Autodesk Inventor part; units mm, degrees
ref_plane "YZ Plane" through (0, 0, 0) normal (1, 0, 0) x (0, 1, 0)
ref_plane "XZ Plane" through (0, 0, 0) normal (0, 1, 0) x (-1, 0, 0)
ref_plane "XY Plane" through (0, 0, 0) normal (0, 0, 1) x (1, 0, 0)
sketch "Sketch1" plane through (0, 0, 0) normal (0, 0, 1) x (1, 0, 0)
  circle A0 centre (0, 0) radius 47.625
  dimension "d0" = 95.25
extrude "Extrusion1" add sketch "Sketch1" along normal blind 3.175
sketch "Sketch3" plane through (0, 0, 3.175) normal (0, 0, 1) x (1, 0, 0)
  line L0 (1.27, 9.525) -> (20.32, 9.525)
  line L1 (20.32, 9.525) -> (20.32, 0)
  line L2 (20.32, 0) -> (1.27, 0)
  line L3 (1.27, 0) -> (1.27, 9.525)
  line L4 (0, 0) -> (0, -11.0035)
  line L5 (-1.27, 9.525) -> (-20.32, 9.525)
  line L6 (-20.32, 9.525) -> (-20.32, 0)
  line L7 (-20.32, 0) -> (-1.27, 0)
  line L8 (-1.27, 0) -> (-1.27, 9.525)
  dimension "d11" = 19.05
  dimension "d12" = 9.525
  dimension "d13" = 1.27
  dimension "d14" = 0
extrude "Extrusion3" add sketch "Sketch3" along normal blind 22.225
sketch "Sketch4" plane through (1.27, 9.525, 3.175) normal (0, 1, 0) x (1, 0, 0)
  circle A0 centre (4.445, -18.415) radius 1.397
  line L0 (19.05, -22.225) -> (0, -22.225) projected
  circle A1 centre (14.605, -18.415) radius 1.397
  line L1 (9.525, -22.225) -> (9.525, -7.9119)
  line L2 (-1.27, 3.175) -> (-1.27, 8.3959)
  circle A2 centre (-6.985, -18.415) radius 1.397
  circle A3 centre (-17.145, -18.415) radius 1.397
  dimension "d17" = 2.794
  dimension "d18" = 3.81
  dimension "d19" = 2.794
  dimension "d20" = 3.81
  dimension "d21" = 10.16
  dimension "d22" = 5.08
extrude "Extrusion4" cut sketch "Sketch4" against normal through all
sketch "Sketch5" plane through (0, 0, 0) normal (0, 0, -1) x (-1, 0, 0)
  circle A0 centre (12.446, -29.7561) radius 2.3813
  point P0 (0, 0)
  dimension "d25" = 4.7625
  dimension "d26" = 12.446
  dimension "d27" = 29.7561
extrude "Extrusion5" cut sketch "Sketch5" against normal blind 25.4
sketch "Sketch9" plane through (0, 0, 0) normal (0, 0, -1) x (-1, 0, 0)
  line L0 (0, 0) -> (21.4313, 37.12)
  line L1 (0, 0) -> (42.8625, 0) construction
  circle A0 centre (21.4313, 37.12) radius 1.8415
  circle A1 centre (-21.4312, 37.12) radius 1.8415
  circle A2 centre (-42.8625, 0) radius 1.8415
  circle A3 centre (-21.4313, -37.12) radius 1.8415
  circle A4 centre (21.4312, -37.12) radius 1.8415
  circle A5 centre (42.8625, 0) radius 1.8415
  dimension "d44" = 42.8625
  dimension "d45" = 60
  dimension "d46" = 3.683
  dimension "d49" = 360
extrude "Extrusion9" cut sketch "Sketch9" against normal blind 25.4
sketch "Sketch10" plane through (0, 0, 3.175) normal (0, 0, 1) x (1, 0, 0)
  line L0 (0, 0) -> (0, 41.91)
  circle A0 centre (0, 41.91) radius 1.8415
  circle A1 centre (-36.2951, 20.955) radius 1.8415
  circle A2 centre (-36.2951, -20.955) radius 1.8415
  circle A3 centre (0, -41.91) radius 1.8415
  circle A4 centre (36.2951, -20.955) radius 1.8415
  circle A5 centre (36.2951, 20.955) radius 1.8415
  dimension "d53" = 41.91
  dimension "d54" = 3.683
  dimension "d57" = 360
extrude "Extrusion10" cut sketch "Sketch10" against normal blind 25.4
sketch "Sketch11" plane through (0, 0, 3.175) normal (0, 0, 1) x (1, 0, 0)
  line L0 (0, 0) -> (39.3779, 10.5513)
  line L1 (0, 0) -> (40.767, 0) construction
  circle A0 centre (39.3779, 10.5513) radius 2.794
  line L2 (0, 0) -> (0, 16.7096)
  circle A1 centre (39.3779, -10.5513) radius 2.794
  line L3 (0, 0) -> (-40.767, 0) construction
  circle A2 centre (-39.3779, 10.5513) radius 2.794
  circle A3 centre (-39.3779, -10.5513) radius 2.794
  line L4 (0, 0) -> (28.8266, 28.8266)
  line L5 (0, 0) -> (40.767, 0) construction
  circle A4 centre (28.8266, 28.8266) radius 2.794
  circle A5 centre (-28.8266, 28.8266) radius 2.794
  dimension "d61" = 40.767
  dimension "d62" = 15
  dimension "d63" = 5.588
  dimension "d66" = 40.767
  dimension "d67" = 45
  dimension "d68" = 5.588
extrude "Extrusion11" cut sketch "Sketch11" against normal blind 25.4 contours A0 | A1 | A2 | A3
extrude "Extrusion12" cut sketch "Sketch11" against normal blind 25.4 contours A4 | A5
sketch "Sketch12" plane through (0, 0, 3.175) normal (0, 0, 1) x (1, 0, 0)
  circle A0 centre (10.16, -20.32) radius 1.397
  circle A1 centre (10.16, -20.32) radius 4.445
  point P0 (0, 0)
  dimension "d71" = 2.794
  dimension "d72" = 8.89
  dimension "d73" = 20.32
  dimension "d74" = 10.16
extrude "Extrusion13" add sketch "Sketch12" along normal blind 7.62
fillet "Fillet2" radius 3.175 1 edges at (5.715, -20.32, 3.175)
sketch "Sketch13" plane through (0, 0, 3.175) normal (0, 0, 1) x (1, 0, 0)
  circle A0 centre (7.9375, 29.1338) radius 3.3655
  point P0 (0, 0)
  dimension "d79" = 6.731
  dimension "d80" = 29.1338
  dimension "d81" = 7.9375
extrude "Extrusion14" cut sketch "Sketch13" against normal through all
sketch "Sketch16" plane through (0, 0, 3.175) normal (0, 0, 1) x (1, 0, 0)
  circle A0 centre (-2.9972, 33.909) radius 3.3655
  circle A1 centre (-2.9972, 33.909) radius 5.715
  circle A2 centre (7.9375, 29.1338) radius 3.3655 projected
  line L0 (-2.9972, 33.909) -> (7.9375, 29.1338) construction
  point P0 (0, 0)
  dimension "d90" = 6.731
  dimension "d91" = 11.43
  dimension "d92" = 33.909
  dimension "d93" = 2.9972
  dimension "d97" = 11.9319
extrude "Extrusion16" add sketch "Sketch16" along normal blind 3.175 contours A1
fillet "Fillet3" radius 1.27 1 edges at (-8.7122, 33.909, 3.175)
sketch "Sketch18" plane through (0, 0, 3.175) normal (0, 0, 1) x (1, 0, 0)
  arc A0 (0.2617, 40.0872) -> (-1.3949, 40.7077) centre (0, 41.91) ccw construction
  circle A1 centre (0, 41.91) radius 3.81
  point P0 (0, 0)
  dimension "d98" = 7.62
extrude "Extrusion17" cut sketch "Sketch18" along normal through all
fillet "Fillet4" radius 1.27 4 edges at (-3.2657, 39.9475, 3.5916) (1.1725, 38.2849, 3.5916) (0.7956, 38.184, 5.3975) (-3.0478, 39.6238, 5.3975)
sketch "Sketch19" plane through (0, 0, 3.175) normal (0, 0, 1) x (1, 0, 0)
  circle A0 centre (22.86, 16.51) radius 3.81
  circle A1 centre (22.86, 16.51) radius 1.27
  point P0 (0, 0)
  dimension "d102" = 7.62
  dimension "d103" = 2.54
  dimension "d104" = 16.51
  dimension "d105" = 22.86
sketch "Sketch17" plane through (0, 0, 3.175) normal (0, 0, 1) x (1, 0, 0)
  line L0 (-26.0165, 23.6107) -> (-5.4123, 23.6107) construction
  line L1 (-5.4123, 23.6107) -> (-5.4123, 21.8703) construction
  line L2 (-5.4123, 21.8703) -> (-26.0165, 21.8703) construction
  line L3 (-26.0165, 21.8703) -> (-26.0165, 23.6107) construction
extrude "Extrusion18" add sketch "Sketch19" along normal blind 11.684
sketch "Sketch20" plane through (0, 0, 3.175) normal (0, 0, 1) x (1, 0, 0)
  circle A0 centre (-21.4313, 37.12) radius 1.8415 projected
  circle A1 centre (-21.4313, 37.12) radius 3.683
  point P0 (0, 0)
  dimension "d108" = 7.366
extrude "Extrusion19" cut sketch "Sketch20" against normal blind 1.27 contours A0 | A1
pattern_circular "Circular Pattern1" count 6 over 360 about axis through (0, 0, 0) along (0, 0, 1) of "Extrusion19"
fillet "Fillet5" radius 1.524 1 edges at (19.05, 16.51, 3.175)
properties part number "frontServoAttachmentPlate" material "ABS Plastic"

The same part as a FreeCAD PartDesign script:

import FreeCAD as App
import Part
import Sketcher
from FreeCAD import Vector
Q = App.Units.Quantity


def edges_at(feature, points):
    """Names of the edges that pass closest to the given points."""
    edges = feature.Shape.Edges
    near = lambda p: min(range(len(edges)), key=lambda i: edges[i].distToShape(Part.Vertex(*p))[0])
    return sorted({f"Edge{near(p) + 1}" for p in points})


def add_polygon(sketch, points):
    """Adds a closed chain of lines whose ends are joined by coincident constraints."""
    first, n = sketch.GeometryCount, len(points)
    for a, b in zip(points, points[1:] + points[:1]):
        sketch.addGeometry(Part.LineSegment(App.Vector(*a, 0), App.Vector(*b, 0)), False)
    for i in range(n):
        sketch.addConstraint(Sketcher.Constraint("Coincident", first + i, 2, first + (i + 1) % n, 1))

doc = App.newDocument("Part")
params = doc.addObject("Spreadsheet::Sheet", "Params")
for row, (alias, value) in enumerate([
    ("sketch1_diameter", "3.75 in"),
    ("pad1_length", "0.125 in"),
    ("sketch2_width", "0.75 in"),
    ("sketch2_height", "0.375 in"),
    ("pad2_length", "0.875 in"),
    ("sketch3_diameter", "0.11 in"),
    ("sketch4_diameter", "0.1875 in"),
    ("pocket2_length", "1 in"),
    ("sketch5_diameter", "0.145 in"),
    ("pocket3_length", "1 in"),
    ("sketch6_diameter", "0.145 in"),
    ("pocket4_length", "1 in"),
    ("sketch7_diameter", "0.22 in"),
    ("pocket5_length", "1 in"),
    ("sketch8_diameter", "0.22 in"),
    ("pocket6_length", "1 in"),
    ("sketch9_diameter", "0.35 in"),
    ("sketch9_diameter2", "0.11 in"),
    ("pad3_length", "0.3 in"),
    ("fillet_radius", "0.125 in"),
    ("sketch10_diameter", "0.265 in"),
    ("sketch11_diameter", "0.45 in"),
    ("sketch11_diameter2", "0.265 in"),
    ("pad4_length", "0.125 in"),
    ("fillet2_radius", "0.05 in"),
    ("sketch12_diameter", "0.3 in"),
    ("fillet3_radius", "0.05 in"),
    ("sketch13_diameter", "0.3 in"),
    ("sketch13_diameter2", "0.1 in"),
    ("pad5_length", "0.46 in"),
    ("sketch14_diameter", "0.29 in"),
    ("pocket9_length", "0.05 in"),
    ("fillet4_radius", "0.06 in"),
], start=1):
    params.set(f"A{row}", alias)
    params.set(f"B{row}", "=" + value)
    params.setAlias(f"B{row}", alias)

body = doc.addObject("PartDesign::Body", "Body")

sketch1 = doc.addObject("Sketcher::SketchObject", "Sketch")
body.addObject(sketch1)
sketch1.AttachmentSupport = (doc.XY_Plane, [""])
sketch1.MapMode = "FlatFace"
sketch1.addGeometry(Part.Circle(Vector(0, 0, 0), Vector(0, 0, 1), 48), False)
sketch1.addConstraint(Sketcher.Constraint("Coincident", 0, 3, -1, 1))
sketch1.addConstraint(Sketcher.Constraint("Diameter", 0, Q("3.75 in")))
sketch1.setExpression("Constraints[1]", "Params.sketch1_diameter")
pad1 = doc.addObject("PartDesign::Pad", "Pad")
body.addObject(pad1)
pad1.Profile = sketch1
pad1.setExpression("Length", "Params.pad1_length")

sketch2 = doc.addObject("Sketcher::SketchObject", "Sketch001")
body.addObject(sketch2)
sketch2.AttachmentSupport = (doc.XY_Plane, [""])
sketch2.MapMode = "FlatFace"
sketch2.AttachmentOffset = App.Placement(Vector(0, 0, 0.125 * 25.4), App.Rotation())
add_polygon(sketch2, [(20, 10), (1, 10), (1, 0), (20, 0)])
add_polygon(sketch2, [(-1, 0), (-1, 10), (-20, 10), (-20, 0)])
sketch2.addConstraint(Sketcher.Constraint("Horizontal", 0))
sketch2.addConstraint(Sketcher.Constraint("Vertical", 1))
sketch2.addConstraint(Sketcher.Constraint("Horizontal", 2))
sketch2.addConstraint(Sketcher.Constraint("Vertical", 3))
sketch2.addConstraint(Sketcher.Constraint("Vertical", 4))
sketch2.addConstraint(Sketcher.Constraint("Horizontal", 5))
sketch2.addConstraint(Sketcher.Constraint("Vertical", 6))
sketch2.addConstraint(Sketcher.Constraint("Horizontal", 7))
sketch2.addConstraint(Sketcher.Constraint("Symmetric", 2, 2, 6, 2, -1, 1))
sketch2.addConstraint(Sketcher.Constraint("Symmetric", 0, 2, 4, 2, -2))
sketch2.addConstraint(Sketcher.Constraint("PointOnObject", 1, 2, -1))
sketch2.addConstraint(Sketcher.Constraint("DistanceX", 0, 2, 0, 1, Q("0.75 in")))
sketch2.addConstraint(Sketcher.Constraint("DistanceY", 1, 2, 1, 1, Q("0.375 in")))
sketch2.addConstraint(Sketcher.Constraint("DistanceX", -1, 1, 0, 2, Q("0.05 in")))
sketch2.setExpression("Constraints[19]", "Params.sketch2_width")
sketch2.setExpression("Constraints[20]", "Params.sketch2_height")
pad2 = doc.addObject("PartDesign::Pad", "Pad001")
body.addObject(pad2)
pad2.Profile = sketch2
pad2.setExpression("Length", "Params.pad2_length")

sketch3 = doc.addObject("Sketcher::SketchObject", "Sketch002")
body.addObject(sketch3)
sketch3.AttachmentSupport = (doc.XZ_Plane, [""])
sketch3.MapMode = "FlatFace"
sketch3.AttachmentOffset = App.Placement(Vector(0, 0, -0.375 * 25.4), App.Rotation())
sketch3.addGeometry(Part.Circle(Vector(5.7, 21.6, 0), Vector(0, 0, 1), 1.4), False)
sketch3.addGeometry(Part.Circle(Vector(15.9, 21.6, 0), Vector(0, 0, 1), 1.4), False)
sketch3.addGeometry(Part.Circle(Vector(-5.7, 21.6, 0), Vector(0, 0, 1), 1.4), False)
sketch3.addGeometry(Part.Circle(Vector(-15.9, 21.6, 0), Vector(0, 0, 1), 1.4), False)
sketch3.addConstraint(Sketcher.Constraint("Equal", 0, 1))
sketch3.addConstraint(Sketcher.Constraint("Equal", 1, 2))
sketch3.addConstraint(Sketcher.Constraint("Equal", 2, 3))
sketch3.addConstraint(Sketcher.Constraint("Symmetric", 0, 3, 2, 3, -2))
sketch3.addConstraint(Sketcher.Constraint("Symmetric", 1, 3, 3, 3, -2))
sketch3.addConstraint(Sketcher.Constraint("Horizontal", 0, 3, 1, 3))
sketch3.addConstraint(Sketcher.Constraint("Diameter", 0, Q("0.11 in")))
sketch3.addConstraint(Sketcher.Constraint("DistanceX", 0, 3, 1, 3, Q("0.4 in")))
sketch3.addConstraint(Sketcher.Constraint("DistanceY", -1, 1, 0, 3, Q("0.85 in")))
sketch3.addConstraint(Sketcher.Constraint("DistanceX", 2, 3, 0, 3, Q("0.45 in")))
sketch3.setExpression("Constraints[6]", "Params.sketch3_diameter")
pocket1 = doc.addObject("PartDesign::Pocket", "Pocket")
body.addObject(pocket1)
pocket1.Profile = sketch3
pocket1.Type = "ThroughAll"
pocket1.Reversed = True

sketch4 = doc.addObject("Sketcher::SketchObject", "Sketch003")
body.addObject(sketch4)
sketch4.AttachmentSupport = (doc.XY_Plane, [""])
sketch4.MapMode = "FlatFace"
sketch4.addGeometry(Part.Circle(Vector(-12.4, -29.8, 0), Vector(0, 0, 1), 2.4), False)
sketch4.addConstraint(Sketcher.Constraint("Diameter", 0, Q("0.1875 in")))
sketch4.addConstraint(Sketcher.Constraint("DistanceX", 0, 3, -1, 1, Q("0.49 in")))
sketch4.addConstraint(Sketcher.Constraint("DistanceY", 0, 3, -1, 1, Q("1.1715 in")))
sketch4.setExpression("Constraints[0]", "Params.sketch4_diameter")
pocket2 = doc.addObject("PartDesign::Pocket", "Pocket001")
body.addObject(pocket2)
pocket2.Profile = sketch4
pocket2.setExpression("Length", "Params.pocket2_length")
pocket2.Reversed = True

sketch5 = doc.addObject("Sketcher::SketchObject", "Sketch004")
body.addObject(sketch5)
sketch5.AttachmentSupport = (doc.XY_Plane, [""])
sketch5.MapMode = "FlatFace"
sketch5.addGeometry(Part.Circle(Vector(-21.4, 37.1, 0), Vector(0, 0, 1), 1.8), False)
sketch5.addGeometry(Part.Circle(Vector(21.4, 37.1, 0), Vector(0, 0, 1), 1.8), False)
sketch5.addGeometry(Part.Circle(Vector(42.9, 0, 0), Vector(0, 0, 1), 1.8), False)
sketch5.addGeometry(Part.Circle(Vector(21.4, -37.1, 0), Vector(0, 0, 1), 1.8), False)
sketch5.addGeometry(Part.Circle(Vector(-21.4, -37.1, 0), Vector(0, 0, 1), 1.8), False)
sketch5.addGeometry(Part.Circle(Vector(-42.9, 0, 0), Vector(0, 0, 1), 1.8), False)
sketch5.addConstraint(Sketcher.Constraint("Equal", 0, 1))
sketch5.addConstraint(Sketcher.Constraint("Equal", 1, 2))
sketch5.addConstraint(Sketcher.Constraint("Equal", 2, 3))
sketch5.addConstraint(Sketcher.Constraint("Equal", 3, 4))
sketch5.addConstraint(Sketcher.Constraint("Equal", 4, 5))
sketch5.addConstraint(Sketcher.Constraint("Symmetric", 0, 3, 3, 3, -1, 1))
sketch5.addConstraint(Sketcher.Constraint("Symmetric", 1, 3, 4, 3, -1, 1))
sketch5.addConstraint(Sketcher.Constraint("Symmetric", 2, 3, 5, 3, -1, 1))
sketch5.addConstraint(Sketcher.Constraint("Symmetric", 0, 3, 1, 3, -2))
sketch5.addConstraint(Sketcher.Constraint("PointOnObject", 2, 3, -1))
sketch5.addConstraint(Sketcher.Constraint("Diameter", 0, Q("0.145 in")))
sketch5.addConstraint(Sketcher.Constraint("DistanceX", -1, 1, 2, 3, Q("1.6875 in")))
sketch5.addConstraint(Sketcher.Constraint("DistanceX", 0, 3, 1, 3, Q("1.6875 in")))
sketch5.addConstraint(Sketcher.Constraint("DistanceY", -1, 1, 0, 3, 37.12))
sketch5.setExpression("Constraints[10]", "Params.sketch5_diameter")
pocket3 = doc.addObject("PartDesign::Pocket", "Pocket002")
body.addObject(pocket3)
pocket3.Profile = sketch5
pocket3.setExpression("Length", "Params.pocket3_length")
pocket3.Reversed = True

sketch6 = doc.addObject("Sketcher::SketchObject", "Sketch005")
body.addObject(sketch6)
sketch6.AttachmentSupport = (doc.XY_Plane, [""])
sketch6.MapMode = "FlatFace"
sketch6.AttachmentOffset = App.Placement(Vector(0, 0, 0.125 * 25.4), App.Rotation())
sketch6.addGeometry(Part.Circle(Vector(0, 41.9, 0), Vector(0, 0, 1), 1.8), False)
sketch6.addGeometry(Part.Circle(Vector(-36.3, 21, 0), Vector(0, 0, 1), 1.8), False)
sketch6.addGeometry(Part.Circle(Vector(-36.3, -21, 0), Vector(0, 0, 1), 1.8), False)
sketch6.addGeometry(Part.Circle(Vector(0, -41.9, 0), Vector(0, 0, 1), 1.8), False)
sketch6.addGeometry(Part.Circle(Vector(36.3, -21, 0), Vector(0, 0, 1), 1.8), False)
sketch6.addGeometry(Part.Circle(Vector(36.3, 21, 0), Vector(0, 0, 1), 1.8), False)
sketch6.addConstraint(Sketcher.Constraint("Equal", 0, 1))
sketch6.addConstraint(Sketcher.Constraint("Equal", 1, 2))
sketch6.addConstraint(Sketcher.Constraint("Equal", 2, 3))
sketch6.addConstraint(Sketcher.Constraint("Equal", 3, 4))
sketch6.addConstraint(Sketcher.Constraint("Equal", 4, 5))
sketch6.addConstraint(Sketcher.Constraint("Symmetric", 0, 3, 3, 3, -1, 1))
sketch6.addConstraint(Sketcher.Constraint("Symmetric", 1, 3, 4, 3, -1, 1))
sketch6.addConstraint(Sketcher.Constraint("Symmetric", 2, 3, 5, 3, -1, 1))
sketch6.addConstraint(Sketcher.Constraint("Symmetric", 2, 3, 4, 3, -2))
sketch6.addConstraint(Sketcher.Constraint("PointOnObject", 0, 3, -2))
sketch6.addConstraint(Sketcher.Constraint("Diameter", 0, Q("0.145 in")))
sketch6.addConstraint(Sketcher.Constraint("DistanceY", -1, 1, 0, 3, Q("1.65 in")))
sketch6.addConstraint(Sketcher.Constraint("DistanceY", 2, 3, 1, 3, Q("1.65 in")))
sketch6.addConstraint(Sketcher.Constraint("DistanceX", 1, 3, -1, 1, 36.295))
sketch6.setExpression("Constraints[10]", "Params.sketch6_diameter")
pocket4 = doc.addObject("PartDesign::Pocket", "Pocket003")
body.addObject(pocket4)
pocket4.Profile = sketch6
pocket4.setExpression("Length", "Params.pocket4_length")

sketch7 = doc.addObject("Sketcher::SketchObject", "Sketch006")
body.addObject(sketch7)
sketch7.AttachmentSupport = (doc.XY_Plane, [""])
sketch7.MapMode = "FlatFace"
sketch7.AttachmentOffset = App.Placement(Vector(0, 0, 0.125 * 25.4), App.Rotation())
sketch7.addGeometry(Part.Circle(Vector(39.4, 10.6, 0), Vector(0, 0, 1), 2.8), False)
sketch7.addGeometry(Part.Circle(Vector(39.4, -10.6, 0), Vector(0, 0, 1), 2.8), False)
sketch7.addGeometry(Part.Circle(Vector(-39.4, 10.6, 0), Vector(0, 0, 1), 2.8), False)
sketch7.addGeometry(Part.Circle(Vector(-39.4, -10.6, 0), Vector(0, 0, 1), 2.8), False)
sketch7.addConstraint(Sketcher.Constraint("Equal", 0, 1))
sketch7.addConstraint(Sketcher.Constraint("Equal", 1, 2))
sketch7.addConstraint(Sketcher.Constraint("Equal", 2, 3))
sketch7.addConstraint(Sketcher.Constraint("Symmetric", 1, 3, 2, 3, -1, 1))
sketch7.addConstraint(Sketcher.Constraint("Symmetric", 0, 3, 3, 3, -1, 1))
sketch7.addConstraint(Sketcher.Constraint("Symmetric", 0, 3, 2, 3, -2))
sketch7.addConstraint(Sketcher.Constraint("Diameter", 0, Q("0.22 in")))
sketch7.addConstraint(Sketcher.Constraint("DistanceX", -1, 1, 0, 3, Q("1.5503 in")))
sketch7.addConstraint(Sketcher.Constraint("DistanceY", -1, 1, 0, 3, Q("0.4154 in")))
sketch7.setExpression("Constraints[6]", "Params.sketch7_diameter")
pocket5 = doc.addObject("PartDesign::Pocket", "Pocket004")
body.addObject(pocket5)
pocket5.Profile = sketch7
pocket5.setExpression("Length", "Params.pocket5_length")

sketch8 = doc.addObject("Sketcher::SketchObject", "Sketch007")
body.addObject(sketch8)
sketch8.AttachmentSupport = (doc.XY_Plane, [""])
sketch8.MapMode = "FlatFace"
sketch8.AttachmentOffset = App.Placement(Vector(0, 0, 0.125 * 25.4), App.Rotation())
sketch8.addGeometry(Part.Circle(Vector(28.8, 28.8, 0), Vector(0, 0, 1), 2.8), False)
sketch8.addGeometry(Part.Circle(Vector(-28.8, 28.8, 0), Vector(0, 0, 1), 2.8), False)
sketch8.addConstraint(Sketcher.Constraint("Equal", 0, 1))
sketch8.addConstraint(Sketcher.Constraint("Symmetric", 0, 3, 1, 3, -2))
sketch8.addConstraint(Sketcher.Constraint("Diameter", 0, Q("0.22 in")))
sketch8.addConstraint(Sketcher.Constraint("DistanceX", -1, 1, 0, 3, Q("1.1349 in")))
sketch8.addConstraint(Sketcher.Constraint("DistanceY", -1, 1, 0, 3, Q("1.1349 in")))
sketch8.setExpression("Constraints[2]", "Params.sketch8_diameter")
pocket6 = doc.addObject("PartDesign::Pocket", "Pocket005")
body.addObject(pocket6)
pocket6.Profile = sketch8
pocket6.setExpression("Length", "Params.pocket6_length")

sketch9 = doc.addObject("Sketcher::SketchObject", "Sketch008")
body.addObject(sketch9)
sketch9.AttachmentSupport = (doc.XY_Plane, [""])
sketch9.MapMode = "FlatFace"
sketch9.AttachmentOffset = App.Placement(Vector(0, 0, 0.125 * 25.4), App.Rotation())
sketch9.addGeometry(Part.Circle(Vector(10.2, -20.3, 0), Vector(0, 0, 1), 4.4), False)
sketch9.addGeometry(Part.Circle(Vector(10.2, -20.3, 0), Vector(0, 0, 1), 1.4), False)
sketch9.addConstraint(Sketcher.Constraint("Coincident", 1, 3, 0, 3))
sketch9.addConstraint(Sketcher.Constraint("Diameter", 0, Q("0.35 in")))
sketch9.addConstraint(Sketcher.Constraint("Diameter", 1, Q("0.11 in")))
sketch9.addConstraint(Sketcher.Constraint("DistanceX", -1, 1, 0, 3, Q("0.4 in")))
sketch9.addConstraint(Sketcher.Constraint("DistanceY", 0, 3, -1, 1, Q("0.8 in")))
sketch9.setExpression("Constraints[1]", "Params.sketch9_diameter")
sketch9.setExpression("Constraints[2]", "Params.sketch9_diameter2")
pad3 = doc.addObject("PartDesign::Pad", "Pad002")
body.addObject(pad3)
pad3.Profile = sketch9
pad3.setExpression("Length", "Params.pad3_length")
doc.recompute()

fillet = doc.addObject("PartDesign::Fillet", "Fillet")
body.addObject(fillet)
fillet.Base = (pad3, edges_at(pad3, [(5.715, -20.32, 3.175)]))
fillet.setExpression("Radius", "Params.fillet_radius")

sketch10 = doc.addObject("Sketcher::SketchObject", "Sketch009")
body.addObject(sketch10)
sketch10.AttachmentSupport = (doc.XY_Plane, [""])
sketch10.MapMode = "FlatFace"
sketch10.AttachmentOffset = App.Placement(Vector(0, 0, 0.125 * 25.4), App.Rotation())
sketch10.addGeometry(Part.Circle(Vector(7.9, 29.1, 0), Vector(0, 0, 1), 3.4), False)
sketch10.addConstraint(Sketcher.Constraint("Diameter", 0, Q("0.265 in")))
sketch10.addConstraint(Sketcher.Constraint("DistanceX", -1, 1, 0, 3, Q("0.3125 in")))
sketch10.addConstraint(Sketcher.Constraint("DistanceY", -1, 1, 0, 3, Q("1.147 in")))
sketch10.setExpression("Constraints[0]", "Params.sketch10_diameter")
pocket7 = doc.addObject("PartDesign::Pocket", "Pocket006")
body.addObject(pocket7)
pocket7.Profile = sketch10
pocket7.Type = "ThroughAll"

sketch11 = doc.addObject("Sketcher::SketchObject", "Sketch010")
body.addObject(sketch11)
sketch11.AttachmentSupport = (doc.XY_Plane, [""])
sketch11.MapMode = "FlatFace"
sketch11.AttachmentOffset = App.Placement(Vector(0, 0, 0.125 * 25.4), App.Rotation())
sketch11.addGeometry(Part.Circle(Vector(-3, 33.9, 0), Vector(0, 0, 1), 5.7), False)
sketch11.addGeometry(Part.Circle(Vector(-3, 33.9, 0), Vector(0, 0, 1), 3.4), False)
sketch11.addConstraint(Sketcher.Constraint("Coincident", 1, 3, 0, 3))
sketch11.addConstraint(Sketcher.Constraint("Diameter", 0, Q("0.45 in")))
sketch11.addConstraint(Sketcher.Constraint("Diameter", 1, Q("0.265 in")))
sketch11.addConstraint(Sketcher.Constraint("DistanceX", 0, 3, -1, 1, Q("0.118 in")))
sketch11.addConstraint(Sketcher.Constraint("DistanceY", -1, 1, 0, 3, Q("1.335 in")))
sketch11.setExpression("Constraints[1]", "Params.sketch11_diameter")
sketch11.setExpression("Constraints[2]", "Params.sketch11_diameter2")
pad4 = doc.addObject("PartDesign::Pad", "Pad003")
body.addObject(pad4)
pad4.Profile = sketch11
pad4.setExpression("Length", "Params.pad4_length")
doc.recompute()

fillet2 = doc.addObject("PartDesign::Fillet", "Fillet001")
body.addObject(fillet2)
fillet2.Base = (pad4, edges_at(pad4, [(-8.712, 33.909, 3.175)]))
fillet2.setExpression("Radius", "Params.fillet2_radius")

sketch12 = doc.addObject("Sketcher::SketchObject", "Sketch011")
body.addObject(sketch12)
sketch12.AttachmentSupport = (doc.XY_Plane, [""])
sketch12.MapMode = "FlatFace"
sketch12.AttachmentOffset = App.Placement(Vector(0, 0, 0.125 * 25.4), App.Rotation())
sketch12.addGeometry(Part.Circle(Vector(0, 41.9, 0), Vector(0, 0, 1), 3.8), False)
sketch12.addConstraint(Sketcher.Constraint("PointOnObject", 0, 3, -2))
sketch12.addConstraint(Sketcher.Constraint("Diameter", 0, Q("0.3 in")))
sketch12.addConstraint(Sketcher.Constraint("DistanceY", -1, 1, 0, 3, Q("1.65 in")))
sketch12.setExpression("Constraints[1]", "Params.sketch12_diameter")
pocket8 = doc.addObject("PartDesign::Pocket", "Pocket007")
body.addObject(pocket8)
pocket8.Profile = sketch12
pocket8.Type = "ThroughAll"
pocket8.Reversed = True
doc.recompute()

fillet3 = doc.addObject("PartDesign::Fillet", "Fillet002")
body.addObject(fillet3)
fillet3.Base = (pocket8, edges_at(pocket8, [
    (-3.266, 39.947, 3.592),
    (1.173, 38.285, 3.592),
    (0.796, 38.184, 5.397),
    (-3.048, 39.624, 5.397),
]))
fillet3.setExpression("Radius", "Params.fillet3_radius")

sketch13 = doc.addObject("Sketcher::SketchObject", "Sketch012")
body.addObject(sketch13)
sketch13.AttachmentSupport = (doc.XY_Plane, [""])
sketch13.MapMode = "FlatFace"
sketch13.AttachmentOffset = App.Placement(Vector(0, 0, 0.125 * 25.4), App.Rotation())
sketch13.addGeometry(Part.Circle(Vector(22.9, 16.5, 0), Vector(0, 0, 1), 3.8), False)
sketch13.addGeometry(Part.Circle(Vector(22.9, 16.5, 0), Vector(0, 0, 1), 1.3), False)
sketch13.addConstraint(Sketcher.Constraint("Coincident", 1, 3, 0, 3))
sketch13.addConstraint(Sketcher.Constraint("Diameter", 0, Q("0.3 in")))
sketch13.addConstraint(Sketcher.Constraint("Diameter", 1, Q("0.1 in")))
sketch13.addConstraint(Sketcher.Constraint("DistanceX", -1, 1, 0, 3, Q("0.9 in")))
sketch13.addConstraint(Sketcher.Constraint("DistanceY", -1, 1, 0, 3, Q("0.65 in")))
sketch13.setExpression("Constraints[1]", "Params.sketch13_diameter")
sketch13.setExpression("Constraints[2]", "Params.sketch13_diameter2")
pad5 = doc.addObject("PartDesign::Pad", "Pad004")
body.addObject(pad5)
pad5.Profile = sketch13
pad5.setExpression("Length", "Params.pad5_length")

sketch14 = doc.addObject("Sketcher::SketchObject", "Sketch013")
body.addObject(sketch14)
sketch14.AttachmentSupport = (doc.XY_Plane, [""])
sketch14.MapMode = "FlatFace"
sketch14.AttachmentOffset = App.Placement(Vector(0, 0, 0.125 * 25.4), App.Rotation())
sketch14.addGeometry(Part.Circle(Vector(-21.4, 37.1, 0), Vector(0, 0, 1), 3.7), False)
sketch14.addConstraint(Sketcher.Constraint("Diameter", 0, Q("0.29 in")))
sketch14.addConstraint(Sketcher.Constraint("DistanceX", 0, 3, -1, 1, Q("0.843752 in")))
sketch14.addConstraint(Sketcher.Constraint("DistanceY", -1, 1, 0, 3, 37.12))
sketch14.setExpression("Constraints[0]", "Params.sketch14_diameter")
pocket9 = doc.addObject("PartDesign::Pocket", "Pocket008")
body.addObject(pocket9)
pocket9.Profile = sketch14
pocket9.setExpression("Length", "Params.pocket9_length")
doc.recompute()

polarpattern = doc.addObject("PartDesign::PolarPattern", "PolarPattern")
body.addObject(polarpattern)
polarpattern.Originals = [pocket9]
polarpattern.Axis = (doc.Z_Axis, [""])
polarpattern.Angle = 360
polarpattern.Occurrences = 6
body.Tip = polarpattern
doc.recompute()

fillet4 = doc.addObject("PartDesign::Fillet", "Fillet003")
body.addObject(fillet4)
fillet4.Base = (polarpattern, edges_at(polarpattern, [(19.05, 16.51, 3.175)]))
fillet4.setExpression("Radius", "Params.fillet4_radius")

doc.recompute()
